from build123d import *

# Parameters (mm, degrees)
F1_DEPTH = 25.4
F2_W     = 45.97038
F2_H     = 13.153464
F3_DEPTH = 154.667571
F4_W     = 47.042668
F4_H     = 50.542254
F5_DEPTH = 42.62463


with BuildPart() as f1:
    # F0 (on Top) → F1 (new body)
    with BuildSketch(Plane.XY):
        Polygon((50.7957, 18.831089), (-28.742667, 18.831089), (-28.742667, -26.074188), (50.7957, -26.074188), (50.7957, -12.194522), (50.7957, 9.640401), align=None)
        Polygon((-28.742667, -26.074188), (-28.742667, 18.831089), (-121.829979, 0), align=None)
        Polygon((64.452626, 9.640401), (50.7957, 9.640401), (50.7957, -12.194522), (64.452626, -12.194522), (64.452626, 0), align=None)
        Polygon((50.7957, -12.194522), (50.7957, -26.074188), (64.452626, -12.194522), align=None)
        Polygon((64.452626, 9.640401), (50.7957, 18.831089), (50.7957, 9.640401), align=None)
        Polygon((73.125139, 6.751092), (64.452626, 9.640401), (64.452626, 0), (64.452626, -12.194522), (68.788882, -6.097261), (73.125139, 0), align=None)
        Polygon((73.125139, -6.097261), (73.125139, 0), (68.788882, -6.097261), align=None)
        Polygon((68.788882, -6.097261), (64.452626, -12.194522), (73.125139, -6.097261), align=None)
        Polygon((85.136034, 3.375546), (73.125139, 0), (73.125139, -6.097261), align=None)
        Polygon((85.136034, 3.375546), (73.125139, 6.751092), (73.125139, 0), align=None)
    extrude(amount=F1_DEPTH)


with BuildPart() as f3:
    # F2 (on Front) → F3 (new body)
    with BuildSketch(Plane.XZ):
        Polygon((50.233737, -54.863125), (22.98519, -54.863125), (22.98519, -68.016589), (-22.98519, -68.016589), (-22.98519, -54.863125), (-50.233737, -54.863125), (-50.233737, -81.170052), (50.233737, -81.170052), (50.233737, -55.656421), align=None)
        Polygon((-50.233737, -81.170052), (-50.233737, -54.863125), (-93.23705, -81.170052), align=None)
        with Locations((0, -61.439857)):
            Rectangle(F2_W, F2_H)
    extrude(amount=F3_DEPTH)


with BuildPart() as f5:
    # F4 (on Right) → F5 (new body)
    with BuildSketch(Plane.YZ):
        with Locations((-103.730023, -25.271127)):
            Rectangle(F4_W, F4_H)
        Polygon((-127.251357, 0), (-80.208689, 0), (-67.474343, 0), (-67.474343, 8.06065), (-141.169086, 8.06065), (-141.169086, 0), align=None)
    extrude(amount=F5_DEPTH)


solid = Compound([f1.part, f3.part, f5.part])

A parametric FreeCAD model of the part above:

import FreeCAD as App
import Part
import Sketcher

V = App.Vector
Q = App.Units.Quantity


def add_polygon(sketch, points):
    """Adds a closed chain of lines whose ends are joined by coincident constraints."""
    first, n = sketch.GeometryCount, len(points)
    for a, b in zip(points, points[1:] + points[:1]):
        sketch.addGeometry(Part.LineSegment(App.Vector(*a, 0), App.Vector(*b, 0)), False)
    for i in range(n):
        sketch.addConstraint(Sketcher.Constraint("Coincident", first + i, 2, first + (i + 1) % n, 1))

doc = App.newDocument("Part")
body = doc.addObject("PartDesign::Body", "Body")

sketch1 = body.newObject("Sketcher::SketchObject", "Sketch")
sketch1.AttachmentSupport = (doc.getObject("XY_Plane"), [""])
sketch1.MapMode = "FlatFace"
add_polygon(sketch1, [(51, 19), (-29, 19), (-122, 0), (-29, -26), (51, -26), (64, -12), (73, -6), (85, 3), (73, 7), (64, 10)])
sketch1.addConstraint(Sketcher.Constraint("Horizontal", 0))
sketch1.addConstraint(Sketcher.Constraint("Horizontal", 3))
sketch1.addConstraint(Sketcher.Constraint("PointOnObject", 1, 2, -1))
sketch1.addConstraint(Sketcher.Constraint("Vertical", 0, 2, 2, 2))
sketch1.addConstraint(Sketcher.Constraint("Vertical", 5, 2, 7, 2))
sketch1.addConstraint(Sketcher.Constraint("Vertical", 4, 2, 8, 2))
sketch1.addConstraint(Sketcher.Constraint("Vertical", 3, 2, 9, 2))
sketch1.addConstraint(Sketcher.Constraint("DistanceX", -1, 1, 3, 2, 50.7957))
sketch1.addConstraint(Sketcher.Constraint("DistanceY", -1, 1, 8, 2, 9.640401))
sketch1.addConstraint(Sketcher.Constraint("DistanceX", 0, 2, 6, 2, 113.878701))
sketch1.addConstraint(Sketcher.Constraint("Distance", 1, 94.972931))
sketch1.addConstraint(Sketcher.Constraint("Distance", 5, 10.601371))
sketch1.addConstraint(Sketcher.Constraint("Distance", 8, 9.141148))
sketch1.addConstraint(Sketcher.Constraint("Distance", 9, 16.461482))
sketch1.addConstraint(Sketcher.Constraint("DistanceX", 0, 2, 0, 1, 79.538367))
sketch1.addConstraint(Sketcher.Constraint("DistanceY", -1, 1, 0, 2, 18.831089))
sketch1.addConstraint(Sketcher.Constraint("DistanceY", 4, 2, -1, 1, 12.194522))
sketch1.addConstraint(Sketcher.Constraint("DistanceX", -1, 1, 5, 2, 73.125139))
sketch1.addConstraint(Sketcher.Constraint("DistanceY", 3, 2, 7, 2, 32.82528))
sketch1.addConstraint(Sketcher.Constraint("Distance", 6, 15.296917))
pad1 = body.newObject("PartDesign::Pad", "Pad")
pad1.Profile = sketch1
pad1.Length = Q("1 in")
body2 = doc.addObject("PartDesign::Body", "Body001")

sketch2 = body2.newObject("Sketcher::SketchObject", "Sketch001")
sketch2.AttachmentSupport = (doc.getObject("XZ_Plane001"), [""])
sketch2.MapMode = "FlatFace"
add_polygon(sketch2, [(50, -55), (-50, -55), (-93, -81), (50, -81)])
sketch2.addConstraint(Sketcher.Constraint("Horizontal", 0))
sketch2.addConstraint(Sketcher.Constraint("Horizontal", 2))
sketch2.addConstraint(Sketcher.Constraint("Vertical", 3))
sketch2.addConstraint(Sketcher.Constraint("Distance", 1, 50.411698))
sketch2.addConstraint(Sketcher.Constraint("DistanceX", 0, 2, 0, 1, 100.467474))
sketch2.addConstraint(Sketcher.Constraint("DistanceX", 2, 1, 2, 2, 143.470787))
sketch2.addConstraint(Sketcher.Constraint("DistanceX", 1, 2, -1, 1, 93.23705))
sketch2.addConstraint(Sketcher.Constraint("DistanceY", 1, 2, -1, 1, 81.170052))
pad2 = body2.newObject("PartDesign::Pad", "Pad001")
pad2.Profile = sketch2
pad2.Length = 154.667571
body3 = doc.addObject("PartDesign::Body", "Body002")

sketch3 = body3.newObject("Sketcher::SketchObject", "Sketch002")
sketch3.AttachmentSupport = (doc.getObject("YZ_Plane002"), [""])
sketch3.MapMode = "FlatFace"
add_polygon(sketch3, [(-127, 0), (-127, -51), (-80, -51), (-80, 0), (-67, 0), (-67, 8), (-141, 8), (-141, 0)])
sketch3.addConstraint(Sketcher.Constraint("Vertical", 0))
sketch3.addConstraint(Sketcher.Constraint("Horizontal", 1))
sketch3.addConstraint(Sketcher.Constraint("Vertical", 2))
sketch3.addConstraint(Sketcher.Constraint("Horizontal", 3))
sketch3.addConstraint(Sketcher.Constraint("Vertical", 4))
sketch3.addConstraint(Sketcher.Constraint("Horizontal", 5))
sketch3.addConstraint(Sketcher.Constraint("Vertical", 6))
sketch3.addConstraint(Sketcher.Constraint("Horizontal", 7))
sketch3.addConstraint(Sketcher.Constraint("PointOnObject", 2, 2, -1))
sketch3.addConstraint(Sketcher.Constraint("PointOnObject", 6, 2, -1))
sketch3.addConstraint(Sketcher.Constraint("DistanceX", 7, 1, 7, 2, 13.917729))
sketch3.addConstraint(Sketcher.Constraint("DistanceY", 4, 1, 4, 2, 8.06065))
sketch3.addConstraint(Sketcher.Constraint("DistanceX", 1, 1, 1, 2, 47.042668))
sketch3.addConstraint(Sketcher.Constraint("DistanceX", 3, 1, 3, 2, 12.734346))
sketch3.addConstraint(Sketcher.Constraint("DistanceY", 0, 2, 0, 1, 50.542254))
sketch3.addConstraint(Sketcher.Constraint("DistanceX", 1, 2, -1, 1, 80.208689))
pad3 = body3.newObject("PartDesign::Pad", "Pad002")
pad3.Profile = sketch3
pad3.Length = 42.62463

doc.recompute()
